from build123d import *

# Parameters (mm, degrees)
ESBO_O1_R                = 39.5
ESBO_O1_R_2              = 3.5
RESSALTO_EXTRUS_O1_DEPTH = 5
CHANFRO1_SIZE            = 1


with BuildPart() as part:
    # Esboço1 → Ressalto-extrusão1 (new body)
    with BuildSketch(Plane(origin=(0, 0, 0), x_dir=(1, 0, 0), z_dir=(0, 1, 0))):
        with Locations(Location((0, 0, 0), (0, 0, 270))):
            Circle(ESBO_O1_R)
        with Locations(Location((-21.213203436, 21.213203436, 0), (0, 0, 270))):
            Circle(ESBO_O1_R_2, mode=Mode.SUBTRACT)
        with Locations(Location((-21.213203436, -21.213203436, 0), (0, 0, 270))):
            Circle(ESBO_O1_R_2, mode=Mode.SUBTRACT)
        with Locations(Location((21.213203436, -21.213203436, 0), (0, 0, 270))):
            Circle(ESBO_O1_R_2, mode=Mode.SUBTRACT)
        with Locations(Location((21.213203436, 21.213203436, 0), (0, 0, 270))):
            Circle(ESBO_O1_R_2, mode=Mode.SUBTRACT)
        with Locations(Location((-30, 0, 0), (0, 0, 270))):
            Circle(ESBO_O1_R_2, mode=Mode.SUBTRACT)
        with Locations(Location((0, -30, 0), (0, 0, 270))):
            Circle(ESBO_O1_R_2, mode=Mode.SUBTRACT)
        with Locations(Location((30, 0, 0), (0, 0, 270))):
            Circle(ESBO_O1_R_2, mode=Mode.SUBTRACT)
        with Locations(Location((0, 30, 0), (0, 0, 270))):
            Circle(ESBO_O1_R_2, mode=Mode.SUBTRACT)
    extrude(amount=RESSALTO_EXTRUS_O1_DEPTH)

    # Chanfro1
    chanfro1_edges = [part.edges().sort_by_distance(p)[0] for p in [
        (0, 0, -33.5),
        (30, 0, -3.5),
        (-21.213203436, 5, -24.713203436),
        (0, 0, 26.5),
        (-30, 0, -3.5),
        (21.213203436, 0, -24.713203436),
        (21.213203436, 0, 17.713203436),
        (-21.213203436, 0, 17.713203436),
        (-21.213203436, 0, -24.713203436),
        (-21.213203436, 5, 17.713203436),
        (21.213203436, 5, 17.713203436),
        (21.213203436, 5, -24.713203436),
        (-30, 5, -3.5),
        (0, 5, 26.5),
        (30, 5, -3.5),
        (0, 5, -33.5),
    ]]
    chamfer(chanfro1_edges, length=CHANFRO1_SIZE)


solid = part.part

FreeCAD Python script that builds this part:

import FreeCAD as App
import Part
import Sketcher
Q = App.Units.Quantity


def edges_at(feature, points):
    """Names of the edges that pass closest to the given points."""
    edges = feature.Shape.Edges
    near = lambda p: min(range(len(edges)), key=lambda i: edges[i].distToShape(Part.Vertex(*p))[0])
    return sorted({f"Edge{near(p) + 1}" for p in points})

doc = App.newDocument("Part")
body = doc.addObject("PartDesign::Body", "Body")

# Sketch on XZ plane
sketch1 = body.newObject("Sketcher::SketchObject", "Sketch")
sketch1.AttachmentSupport = (doc.getObject("XZ_Plane"), [""])
sketch1.MapMode = "FlatFace"
sketch1.addGeometry([
    Part.Circle(App.Vector(0, 0, 0), App.Vector(0, 0, 1), 39.5),  # 0
    Part.Circle(App.Vector(-21.2, -21.2, 0), App.Vector(0, 0, 1), 3.5),  # 1
    Part.Circle(App.Vector(0, -30, 0), App.Vector(0, 0, 1), 3.5),  # 2
    Part.Circle(App.Vector(-30, 0, 0), App.Vector(0, 0, 1), 3.5),  # 3
    Part.Circle(App.Vector(-21.2, 21.2, 0), App.Vector(0, 0, 1), 3.5),  # 4
    Part.Circle(App.Vector(21.2, -21.2, 0), App.Vector(0, 0, 1), 3.5),  # 5
    Part.Circle(App.Vector(0, 30, 0), App.Vector(0, 0, 1), 3.5),  # 6
    Part.Circle(App.Vector(30, 0, 0), App.Vector(0, 0, 1), 3.5),  # 7
    Part.Circle(App.Vector(21.2, 21.2, 0), App.Vector(0, 0, 1), 3.5),  # 8
], False)
sketch1.addConstraint([
    Sketcher.Constraint("Coincident", 0, 3, -1, 1),
    Sketcher.Constraint("Equal", 1, 2),
    Sketcher.Constraint("Equal", 2, 3),
    Sketcher.Constraint("Equal", 3, 4),
    Sketcher.Constraint("Equal", 4, 5),
    Sketcher.Constraint("Equal", 5, 6),
    Sketcher.Constraint("Equal", 6, 7),
    Sketcher.Constraint("Equal", 7, 8),
    Sketcher.Constraint("Symmetric", 4, 3, 5, 3, -1, 1),
    Sketcher.Constraint("Symmetric", 2, 3, 6, 3, -1, 1),
    Sketcher.Constraint("Symmetric", 3, 3, 7, 3, -1, 1),
    Sketcher.Constraint("Symmetric", 1, 3, 8, 3, -1, 1),
    Sketcher.Constraint("Symmetric", 1, 3, 5, 3, -2),
    Sketcher.Constraint("PointOnObject", 2, 3, -2),
    Sketcher.Constraint("PointOnObject", 3, 3, -1),
    Sketcher.Constraint("Diameter", 0, Q("79 mm")),
    Sketcher.Constraint("Diameter", 1, Q("7 mm")),
    Sketcher.Constraint("DistanceY", 2, 3, -1, 1, Q("30 mm")),
    Sketcher.Constraint("DistanceX", 3, 3, -1, 1, Q("30 mm")),
    Sketcher.Constraint("DistanceX", 1, 3, -1, 1, Q("21.213203 mm")),
    Sketcher.Constraint("DistanceY", 1, 3, -1, 1, Q("21.213203 mm")),
])
pad1 = body.newObject("PartDesign::Pad", "Pad")
pad1.Profile = sketch1
pad1.Length = 5
pad1.Reversed = True
doc.recompute()

chamfer = body.newObject("PartDesign::Chamfer", "Chamfer")
chamfer.Base = (pad1, edges_at(pad1, [
    (0, 0, -33.5),
    (30, 0, -3.5),
    (-21.213, 5, -24.713),
    (0, 0, 26.5),
    (-30, 0, -3.5),
    (21.213, 0, -24.713),
    (21.213, 0, 17.713),
    (-21.213, 0, 17.713),
    (-21.213, 0, -24.713),
    (-21.213, 5, 17.713),
    (21.213, 5, 17.713),
    (21.213, 5, -24.713),
    (-30, 5, -3.5),
    (0, 5, 26.5),
    (30, 5, -3.5),
    (0, 5, -33.5),
]))
chamfer.Size = 1

doc.recompute()
